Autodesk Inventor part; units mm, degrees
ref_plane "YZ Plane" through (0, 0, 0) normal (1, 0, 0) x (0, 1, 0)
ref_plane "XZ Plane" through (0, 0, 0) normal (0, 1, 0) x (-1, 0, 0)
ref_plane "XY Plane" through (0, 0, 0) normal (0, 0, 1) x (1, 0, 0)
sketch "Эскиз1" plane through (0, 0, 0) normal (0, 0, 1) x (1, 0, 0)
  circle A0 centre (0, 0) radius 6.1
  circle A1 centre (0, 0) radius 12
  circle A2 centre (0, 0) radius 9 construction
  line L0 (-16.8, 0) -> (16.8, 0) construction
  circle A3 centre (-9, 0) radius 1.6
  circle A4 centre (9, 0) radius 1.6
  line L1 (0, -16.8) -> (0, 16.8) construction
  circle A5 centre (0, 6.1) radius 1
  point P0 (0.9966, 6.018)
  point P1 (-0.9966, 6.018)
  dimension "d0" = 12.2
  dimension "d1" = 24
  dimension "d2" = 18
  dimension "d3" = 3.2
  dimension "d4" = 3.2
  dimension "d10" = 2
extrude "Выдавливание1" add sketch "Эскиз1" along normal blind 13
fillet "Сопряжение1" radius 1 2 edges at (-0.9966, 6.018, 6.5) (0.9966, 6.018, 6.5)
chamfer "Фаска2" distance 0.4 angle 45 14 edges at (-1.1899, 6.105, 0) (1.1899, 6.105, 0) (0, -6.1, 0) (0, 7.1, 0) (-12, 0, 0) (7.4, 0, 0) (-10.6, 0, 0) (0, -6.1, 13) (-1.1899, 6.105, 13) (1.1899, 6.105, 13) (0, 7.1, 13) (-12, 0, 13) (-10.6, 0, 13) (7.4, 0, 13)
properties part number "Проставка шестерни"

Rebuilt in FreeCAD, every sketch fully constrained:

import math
import FreeCAD as App
import Part
import Sketcher
from FreeCAD import Vector


def edges_at(feature, points):
    """Names of the edges that pass closest to the given points."""
    edges = feature.Shape.Edges
    near = lambda p: min(range(len(edges)), key=lambda i: edges[i].distToShape(Part.Vertex(*p))[0])
    return sorted({f"Edge{near(p) + 1}" for p in points})

doc = App.newDocument("Part")
body = doc.addObject("PartDesign::Body", "Body")

# Sketch on XY plane
sketch1 = body.newObject("Sketcher::SketchObject", "Sketch")
sketch1.AttachmentSupport = (doc.getObject("XY_Plane"), [""])
sketch1.MapMode = "FlatFace"
sketch1.addGeometry([
    Part.Circle(Vector(0, 0, 0), Vector(0, 0, 1), 12),  # 0
    Part.Circle(Vector(-9, 0, 0), Vector(0, 0, 1), 1.6),  # 1
    Part.ArcOfCircle(Part.Circle(Vector(0, 0, 0), Vector(0, 0, 1), 6.1), math.radians(99), math.radians(441)),  # 2
    Part.ArcOfCircle(Part.Circle(Vector(0, 6.1, 0), Vector(0, 0, 1), 1), math.radians(-5), math.radians(185)),  # 3
    Part.Circle(Vector(9, 0, 0), Vector(0, 0, 1), 1.6),  # 4
], False)
sketch1.addConstraint([
    Sketcher.Constraint("Coincident", 2, 1, 3, 2),
    Sketcher.Constraint("Coincident", 3, 1, 2, 2),
    Sketcher.Constraint("Coincident", 0, 3, -1, 1),
    Sketcher.Constraint("Coincident", 2, 3, -1, 1),
    Sketcher.Constraint("Equal", 1, 4),
    Sketcher.Constraint("Symmetric", 1, 3, 4, 3, -1, 1),
    Sketcher.Constraint("PointOnObject", 1, 3, -1),
    Sketcher.Constraint("PointOnObject", 3, 3, -2),
    Sketcher.Constraint("Diameter", 0, 24.0),
    Sketcher.Constraint("Radius", 3, 1.0),
    Sketcher.Constraint("Diameter", 1, 3.2),
    Sketcher.Constraint("Radius", 2, 6.1),
    Sketcher.Constraint("DistanceX", 1, 3, 4, 3, 18.0),
    Sketcher.Constraint("DistanceY", -1, 1, 3, 3, 6.1),
])
pad1 = body.newObject("PartDesign::Pad", "Pad")
pad1.Profile = sketch1
pad1.Length = 13
doc.recompute()

fillet = body.newObject("PartDesign::Fillet", "Fillet")
fillet.Base = (pad1, edges_at(pad1, [(-0.997, 6.018, 6.5), (0.997, 6.018, 6.5)]))
fillet.Radius = 1
doc.recompute()

chamfer = body.newObject("PartDesign::Chamfer", "Chamfer")
chamfer.Base = (fillet, edges_at(fillet, [
    (-1.19, 6.105, 0),
    (1.19, 6.105, 0),
    (0, -6.1, 0),
    (0, 7.1, 0),
    (-12, 0, 0),
    (7.4, 0, 0),
    (-10.6, 0, 0),
    (0, -6.1, 13),
    (-1.19, 6.105, 13),
    (1.19, 6.105, 13),
    (0, 7.1, 13),
    (-12, 0, 13),
    (-10.6, 0, 13),
    (7.4, 0, 13),
]))
chamfer.Size = 0.4

doc.recompute()
